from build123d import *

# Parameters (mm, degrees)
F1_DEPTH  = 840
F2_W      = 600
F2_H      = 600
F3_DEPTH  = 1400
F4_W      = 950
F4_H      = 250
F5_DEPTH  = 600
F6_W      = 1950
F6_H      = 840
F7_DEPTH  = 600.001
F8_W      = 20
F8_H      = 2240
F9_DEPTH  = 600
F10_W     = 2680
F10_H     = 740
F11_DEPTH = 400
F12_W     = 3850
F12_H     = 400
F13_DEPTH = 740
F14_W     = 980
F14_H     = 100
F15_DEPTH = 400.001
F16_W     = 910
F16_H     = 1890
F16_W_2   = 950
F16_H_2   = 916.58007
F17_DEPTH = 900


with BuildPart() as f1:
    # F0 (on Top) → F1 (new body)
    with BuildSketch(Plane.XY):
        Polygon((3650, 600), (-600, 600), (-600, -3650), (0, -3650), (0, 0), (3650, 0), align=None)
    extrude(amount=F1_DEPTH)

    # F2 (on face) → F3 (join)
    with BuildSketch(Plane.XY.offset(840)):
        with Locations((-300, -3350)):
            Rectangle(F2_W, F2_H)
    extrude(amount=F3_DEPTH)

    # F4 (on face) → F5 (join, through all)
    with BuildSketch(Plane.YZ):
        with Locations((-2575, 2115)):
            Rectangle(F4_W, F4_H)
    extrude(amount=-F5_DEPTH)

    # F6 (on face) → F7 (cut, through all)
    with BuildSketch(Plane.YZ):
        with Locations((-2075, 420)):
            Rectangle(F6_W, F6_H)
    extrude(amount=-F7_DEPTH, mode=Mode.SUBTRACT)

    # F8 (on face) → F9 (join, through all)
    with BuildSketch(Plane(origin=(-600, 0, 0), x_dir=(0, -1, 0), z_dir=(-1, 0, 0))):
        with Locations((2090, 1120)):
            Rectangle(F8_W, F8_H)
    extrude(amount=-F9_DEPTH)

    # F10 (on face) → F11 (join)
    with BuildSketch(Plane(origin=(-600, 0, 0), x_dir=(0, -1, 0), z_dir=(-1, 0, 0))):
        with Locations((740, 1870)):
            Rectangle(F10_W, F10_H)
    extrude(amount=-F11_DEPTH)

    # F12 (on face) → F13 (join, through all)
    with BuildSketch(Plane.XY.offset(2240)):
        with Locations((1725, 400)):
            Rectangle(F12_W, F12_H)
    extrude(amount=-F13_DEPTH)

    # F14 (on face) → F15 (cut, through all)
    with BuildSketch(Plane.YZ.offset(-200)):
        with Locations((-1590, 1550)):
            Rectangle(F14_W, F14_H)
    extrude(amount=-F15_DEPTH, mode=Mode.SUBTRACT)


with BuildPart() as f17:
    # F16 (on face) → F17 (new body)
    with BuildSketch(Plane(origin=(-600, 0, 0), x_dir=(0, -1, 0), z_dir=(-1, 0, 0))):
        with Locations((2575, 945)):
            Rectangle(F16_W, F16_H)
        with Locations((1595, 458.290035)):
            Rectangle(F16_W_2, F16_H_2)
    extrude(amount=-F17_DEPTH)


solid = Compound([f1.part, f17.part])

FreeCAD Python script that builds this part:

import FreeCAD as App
import Part
import Sketcher


def add_polygon(sketch, points):
    """Adds a closed chain of lines whose ends are joined by coincident constraints."""
    first, n = sketch.GeometryCount, len(points)
    for a, b in zip(points, points[1:] + points[:1]):
        sketch.addGeometry(Part.LineSegment(App.Vector(*a, 0), App.Vector(*b, 0)), False)
    for i in range(n):
        sketch.addConstraint(Sketcher.Constraint("Coincident", first + i, 2, first + (i + 1) % n, 1))

doc = App.newDocument("Part")
body = doc.addObject("PartDesign::Body", "Body")
body.AllowCompound = True

sketch1 = doc.addObject("Sketcher::SketchObject", "Sketch")
body.addObject(sketch1)
sketch1.AttachmentSupport = (doc.XY_Plane, [""])
sketch1.MapMode = "FlatFace"
add_polygon(sketch1, [(3650, 600), (-600, 600), (-600, -3650), (0, -3650), (0, 0), (3650, 0)])
sketch1.addConstraint(Sketcher.Constraint("Horizontal", 0))
sketch1.addConstraint(Sketcher.Constraint("Vertical", 1))
sketch1.addConstraint(Sketcher.Constraint("Horizontal", 2))
sketch1.addConstraint(Sketcher.Constraint("Vertical", 3))
sketch1.addConstraint(Sketcher.Constraint("Horizontal", 4))
sketch1.addConstraint(Sketcher.Constraint("Vertical", 5))
sketch1.addConstraint(Sketcher.Constraint("Coincident", 3, 2, -1, 1))
sketch1.addConstraint(Sketcher.Constraint("Equal", 0, 1))
sketch1.addConstraint(Sketcher.Constraint("Equal", 4, 3))
sketch1.addConstraint(Sketcher.Constraint("DistanceX", 0, 2, 0, 1, 4250.0))
sketch1.addConstraint(Sketcher.Constraint("DistanceX", 2, 1, 2, 2, 600.0))
pad1 = doc.addObject("PartDesign::Pad", "Pad")
body.addObject(pad1)
pad1.Profile = sketch1
pad1.Length = 840

sketch2 = doc.addObject("Sketcher::SketchObject", "Sketch001")
body.addObject(sketch2)
sketch2.AttachmentSupport = (doc.XY_Plane, [""])
sketch2.MapMode = "FlatFace"
sketch2.AttachmentOffset = App.Placement(App.Vector(0, 0, 840), App.Rotation())
add_polygon(sketch2, [(-600, -3050), (-600, -3650), (0, -3650), (0, -3050)])
sketch2.addConstraint(Sketcher.Constraint("Vertical", 0))
sketch2.addConstraint(Sketcher.Constraint("Horizontal", 1))
sketch2.addConstraint(Sketcher.Constraint("Vertical", 2))
sketch2.addConstraint(Sketcher.Constraint("Horizontal", 3))
sketch2.addConstraint(Sketcher.Constraint("PointOnObject", 1, 2, -2))
sketch2.addConstraint(Sketcher.Constraint("Equal", 3, 0))
sketch2.addConstraint(Sketcher.Constraint("DistanceX", 1, 1, 1, 2, 600.0))
sketch2.addConstraint(Sketcher.Constraint("DistanceY", 0, 2, -1, 1, 3650.0))
pad2 = doc.addObject("PartDesign::Pad", "Pad001")
body.addObject(pad2)
pad2.Profile = sketch2
pad2.Length = 1400

sketch3 = doc.addObject("Sketcher::SketchObject", "Sketch002")
body.addObject(sketch3)
sketch3.AttachmentSupport = (doc.YZ_Plane, [""])
sketch3.MapMode = "FlatFace"
add_polygon(sketch3, [(-3050, 2240), (-3050, 1990), (-2100, 1990), (-2100, 2240)])
sketch3.addConstraint(Sketcher.Constraint("Vertical", 0))
sketch3.addConstraint(Sketcher.Constraint("Horizontal", 1))
sketch3.addConstraint(Sketcher.Constraint("Vertical", 2))
sketch3.addConstraint(Sketcher.Constraint("Horizontal", 3))
sketch3.addConstraint(Sketcher.Constraint("DistanceX", 1, 1, 1, 2, 950.0))
sketch3.addConstraint(Sketcher.Constraint("DistanceY", 0, 2, 0, 1, 250.0))
sketch3.addConstraint(Sketcher.Constraint("DistanceX", 0, 2, -1, 1, 3050.0))
sketch3.addConstraint(Sketcher.Constraint("DistanceY", -1, 1, 0, 2, 1990.0))
pad3 = doc.addObject("PartDesign::Pad", "Pad002")
body.addObject(pad3)
pad3.Profile = sketch3
pad3.Length = 600
pad3.Reversed = True

sketch4 = doc.addObject("Sketcher::SketchObject", "Sketch003")
body.addObject(sketch4)
sketch4.AttachmentSupport = (doc.YZ_Plane, [""])
sketch4.MapMode = "FlatFace"
add_polygon(sketch4, [(-3050, 840), (-3050, 0), (-1100, 0), (-1100, 840)])
sketch4.addConstraint(Sketcher.Constraint("Vertical", 0))
sketch4.addConstraint(Sketcher.Constraint("Horizontal", 1))
sketch4.addConstraint(Sketcher.Constraint("Vertical", 2))
sketch4.addConstraint(Sketcher.Constraint("Horizontal", 3))
sketch4.addConstraint(Sketcher.Constraint("PointOnObject", 0, 2, -1))
sketch4.addConstraint(Sketcher.Constraint("DistanceX", 1, 1, 1, 2, 1950.0))
sketch4.addConstraint(Sketcher.Constraint("DistanceY", 0, 2, 0, 1, 840.0))
sketch4.addConstraint(Sketcher.Constraint("DistanceX", 0, 2, -1, 1, 3050.0))
pocket1 = doc.addObject("PartDesign::Pocket", "Pocket")
body.addObject(pocket1)
pocket1.Profile = sketch4
pocket1.Type = "ThroughAll"

sketch5 = doc.addObject("Sketcher::SketchObject", "Sketch004")
body.addObject(sketch5)
sketch5.AttachmentSupport = (doc.YZ_Plane, [""])
sketch5.MapMode = "FlatFace"
sketch5.AttachmentOffset = App.Placement(App.Vector(0, 0, -600), App.Rotation())
add_polygon(sketch5, [(-2080, 2240), (-2080, 0), (-2100, 0), (-2100, 2240)])
sketch5.addConstraint(Sketcher.Constraint("Vertical", 0))
sketch5.addConstraint(Sketcher.Constraint("Horizontal", 1))
sketch5.addConstraint(Sketcher.Constraint("Vertical", 2))
sketch5.addConstraint(Sketcher.Constraint("Horizontal", 3))
sketch5.addConstraint(Sketcher.Constraint("PointOnObject", 0, 2, -1))
sketch5.addConstraint(Sketcher.Constraint("DistanceX", 1, 2, 1, 1, 20.0))
sketch5.addConstraint(Sketcher.Constraint("DistanceY", 0, 2, 0, 1, 2240.0))
sketch5.addConstraint(Sketcher.Constraint("DistanceX", 0, 2, -1, 1, 2080.0))
pad4 = doc.addObject("PartDesign::Pad", "Pad003")
body.addObject(pad4)
pad4.Profile = sketch5
pad4.Length = 600

sketch6 = doc.addObject("Sketcher::SketchObject", "Sketch005")
body.addObject(sketch6)
sketch6.AttachmentSupport = (doc.YZ_Plane, [""])
sketch6.MapMode = "FlatFace"
sketch6.AttachmentOffset = App.Placement(App.Vector(0, 0, -600), App.Rotation())
add_polygon(sketch6, [(600, 2240), (600, 1500), (-2080, 1500), (-2080, 2240)])
sketch6.addConstraint(Sketcher.Constraint("Vertical", 0))
sketch6.addConstraint(Sketcher.Constraint("Horizontal", 1))
sketch6.addConstraint(Sketcher.Constraint("Vertical", 2))
sketch6.addConstraint(Sketcher.Constraint("Horizontal", 3))
sketch6.addConstraint(Sketcher.Constraint("DistanceX", 1, 2, 1, 1, 2680.0))
sketch6.addConstraint(Sketcher.Constraint("DistanceY", 0, 2, 0, 1, 740.0))
sketch6.addConstraint(Sketcher.Constraint("DistanceX", -1, 1, 0, 2, 600.0))
sketch6.addConstraint(Sketcher.Constraint("DistanceY", -1, 1, 0, 2, 1500.0))
pad5 = doc.addObject("PartDesign::Pad", "Pad004")
body.addObject(pad5)
pad5.Profile = sketch6
pad5.Length = 400

sketch7 = doc.addObject("Sketcher::SketchObject", "Sketch006")
body.addObject(sketch7)
sketch7.AttachmentSupport = (doc.XY_Plane, [""])
sketch7.MapMode = "FlatFace"
sketch7.AttachmentOffset = App.Placement(App.Vector(0, 0, 2240), App.Rotation())
add_polygon(sketch7, [(-200, 600), (-200, 200), (3650, 200), (3650, 600)])
sketch7.addConstraint(Sketcher.Constraint("Vertical", 0))
sketch7.addConstraint(Sketcher.Constraint("Horizontal", 1))
sketch7.addConstraint(Sketcher.Constraint("Vertical", 2))
sketch7.addConstraint(Sketcher.Constraint("Horizontal", 3))
sketch7.addConstraint(Sketcher.Constraint("DistanceX", 1, 1, 1, 2, 3850.0))
sketch7.addConstraint(Sketcher.Constraint("DistanceY", 0, 2, 0, 1, 400.0))
sketch7.addConstraint(Sketcher.Constraint("DistanceX", 0, 2, -1, 1, 200.0))
sketch7.addConstraint(Sketcher.Constraint("DistanceY", -1, 1, 0, 2, 200.0))
pad6 = doc.addObject("PartDesign::Pad", "Pad005")
body.addObject(pad6)
pad6.Profile = sketch7
pad6.Length = 740
pad6.Reversed = True

sketch8 = doc.addObject("Sketcher::SketchObject", "Sketch007")
body.addObject(sketch8)
sketch8.AttachmentSupport = (doc.YZ_Plane, [""])
sketch8.MapMode = "FlatFace"
sketch8.AttachmentOffset = App.Placement(App.Vector(0, 0, -200), App.Rotation())
add_polygon(sketch8, [(-2080, 1600), (-2080, 1500), (-1100, 1500), (-1100, 1600)])
sketch8.addConstraint(Sketcher.Constraint("Vertical", 0))
sketch8.addConstraint(Sketcher.Constraint("Horizontal", 1))
sketch8.addConstraint(Sketcher.Constraint("Vertical", 2))
sketch8.addConstraint(Sketcher.Constraint("Horizontal", 3))
sketch8.addConstraint(Sketcher.Constraint("DistanceX", 1, 1, 1, 2, 980.0))
sketch8.addConstraint(Sketcher.Constraint("DistanceY", 0, 2, 0, 1, 100.0))
sketch8.addConstraint(Sketcher.Constraint("DistanceX", 0, 2, -1, 1, 2080.0))
sketch8.addConstraint(Sketcher.Constraint("DistanceY", -1, 1, 0, 2, 1500.0))
pocket2 = doc.addObject("PartDesign::Pocket", "Pocket001")
body.addObject(pocket2)
pocket2.Profile = sketch8
pocket2.Type = "ThroughAll"
body2 = doc.addObject("PartDesign::Body", "Body001")
body2.AllowCompound = True

sketch9 = doc.addObject("Sketcher::SketchObject", "Sketch008")
body2.addObject(sketch9)
sketch9.AttachmentSupport = (doc.getObject("YZ_Plane001"), [""])
sketch9.MapMode = "FlatFace"
sketch9.AttachmentOffset = App.Placement(App.Vector(0, 0, -600), App.Rotation())
add_polygon(sketch9, [(-2120, 1890), (-2120, 0), (-3030, 0), (-3030, 1890)])
add_polygon(sketch9, [(-1120, 917), (-1120, 0), (-2070, 0), (-2070, 917)])
sketch9.addConstraint(Sketcher.Constraint("Vertical", 0))
sketch9.addConstraint(Sketcher.Constraint("Horizontal", 1))
sketch9.addConstraint(Sketcher.Constraint("Vertical", 2))
sketch9.addConstraint(Sketcher.Constraint("Horizontal", 3))
sketch9.addConstraint(Sketcher.Constraint("Vertical", 4))
sketch9.addConstraint(Sketcher.Constraint("Horizontal", 5))
sketch9.addConstraint(Sketcher.Constraint("Vertical", 6))
sketch9.addConstraint(Sketcher.Constraint("Horizontal", 7))
sketch9.addConstraint(Sketcher.Constraint("PointOnObject", 0, 2, -1))
sketch9.addConstraint(Sketcher.Constraint("PointOnObject", 4, 2, -1))
sketch9.addConstraint(Sketcher.Constraint("DistanceX", 1, 2, 1, 1, 910.0))
sketch9.addConstraint(Sketcher.Constraint("DistanceX", 5, 2, 5, 1, 950.0))
sketch9.addConstraint(Sketcher.Constraint("DistanceY", 0, 2, 0, 1, 1890.0))
sketch9.addConstraint(Sketcher.Constraint("DistanceX", 0, 2, -1, 1, 2120.0))
sketch9.addConstraint(Sketcher.Constraint("DistanceX", 4, 2, -1, 1, 1120.0))
sketch9.addConstraint(Sketcher.Constraint("DistanceY", 4, 2, 4, 1, 916.58007))
pad7 = doc.addObject("PartDesign::Pad", "Pad006")
body2.addObject(pad7)
pad7.Profile = sketch9
pad7.Length = 900

doc.recompute()
